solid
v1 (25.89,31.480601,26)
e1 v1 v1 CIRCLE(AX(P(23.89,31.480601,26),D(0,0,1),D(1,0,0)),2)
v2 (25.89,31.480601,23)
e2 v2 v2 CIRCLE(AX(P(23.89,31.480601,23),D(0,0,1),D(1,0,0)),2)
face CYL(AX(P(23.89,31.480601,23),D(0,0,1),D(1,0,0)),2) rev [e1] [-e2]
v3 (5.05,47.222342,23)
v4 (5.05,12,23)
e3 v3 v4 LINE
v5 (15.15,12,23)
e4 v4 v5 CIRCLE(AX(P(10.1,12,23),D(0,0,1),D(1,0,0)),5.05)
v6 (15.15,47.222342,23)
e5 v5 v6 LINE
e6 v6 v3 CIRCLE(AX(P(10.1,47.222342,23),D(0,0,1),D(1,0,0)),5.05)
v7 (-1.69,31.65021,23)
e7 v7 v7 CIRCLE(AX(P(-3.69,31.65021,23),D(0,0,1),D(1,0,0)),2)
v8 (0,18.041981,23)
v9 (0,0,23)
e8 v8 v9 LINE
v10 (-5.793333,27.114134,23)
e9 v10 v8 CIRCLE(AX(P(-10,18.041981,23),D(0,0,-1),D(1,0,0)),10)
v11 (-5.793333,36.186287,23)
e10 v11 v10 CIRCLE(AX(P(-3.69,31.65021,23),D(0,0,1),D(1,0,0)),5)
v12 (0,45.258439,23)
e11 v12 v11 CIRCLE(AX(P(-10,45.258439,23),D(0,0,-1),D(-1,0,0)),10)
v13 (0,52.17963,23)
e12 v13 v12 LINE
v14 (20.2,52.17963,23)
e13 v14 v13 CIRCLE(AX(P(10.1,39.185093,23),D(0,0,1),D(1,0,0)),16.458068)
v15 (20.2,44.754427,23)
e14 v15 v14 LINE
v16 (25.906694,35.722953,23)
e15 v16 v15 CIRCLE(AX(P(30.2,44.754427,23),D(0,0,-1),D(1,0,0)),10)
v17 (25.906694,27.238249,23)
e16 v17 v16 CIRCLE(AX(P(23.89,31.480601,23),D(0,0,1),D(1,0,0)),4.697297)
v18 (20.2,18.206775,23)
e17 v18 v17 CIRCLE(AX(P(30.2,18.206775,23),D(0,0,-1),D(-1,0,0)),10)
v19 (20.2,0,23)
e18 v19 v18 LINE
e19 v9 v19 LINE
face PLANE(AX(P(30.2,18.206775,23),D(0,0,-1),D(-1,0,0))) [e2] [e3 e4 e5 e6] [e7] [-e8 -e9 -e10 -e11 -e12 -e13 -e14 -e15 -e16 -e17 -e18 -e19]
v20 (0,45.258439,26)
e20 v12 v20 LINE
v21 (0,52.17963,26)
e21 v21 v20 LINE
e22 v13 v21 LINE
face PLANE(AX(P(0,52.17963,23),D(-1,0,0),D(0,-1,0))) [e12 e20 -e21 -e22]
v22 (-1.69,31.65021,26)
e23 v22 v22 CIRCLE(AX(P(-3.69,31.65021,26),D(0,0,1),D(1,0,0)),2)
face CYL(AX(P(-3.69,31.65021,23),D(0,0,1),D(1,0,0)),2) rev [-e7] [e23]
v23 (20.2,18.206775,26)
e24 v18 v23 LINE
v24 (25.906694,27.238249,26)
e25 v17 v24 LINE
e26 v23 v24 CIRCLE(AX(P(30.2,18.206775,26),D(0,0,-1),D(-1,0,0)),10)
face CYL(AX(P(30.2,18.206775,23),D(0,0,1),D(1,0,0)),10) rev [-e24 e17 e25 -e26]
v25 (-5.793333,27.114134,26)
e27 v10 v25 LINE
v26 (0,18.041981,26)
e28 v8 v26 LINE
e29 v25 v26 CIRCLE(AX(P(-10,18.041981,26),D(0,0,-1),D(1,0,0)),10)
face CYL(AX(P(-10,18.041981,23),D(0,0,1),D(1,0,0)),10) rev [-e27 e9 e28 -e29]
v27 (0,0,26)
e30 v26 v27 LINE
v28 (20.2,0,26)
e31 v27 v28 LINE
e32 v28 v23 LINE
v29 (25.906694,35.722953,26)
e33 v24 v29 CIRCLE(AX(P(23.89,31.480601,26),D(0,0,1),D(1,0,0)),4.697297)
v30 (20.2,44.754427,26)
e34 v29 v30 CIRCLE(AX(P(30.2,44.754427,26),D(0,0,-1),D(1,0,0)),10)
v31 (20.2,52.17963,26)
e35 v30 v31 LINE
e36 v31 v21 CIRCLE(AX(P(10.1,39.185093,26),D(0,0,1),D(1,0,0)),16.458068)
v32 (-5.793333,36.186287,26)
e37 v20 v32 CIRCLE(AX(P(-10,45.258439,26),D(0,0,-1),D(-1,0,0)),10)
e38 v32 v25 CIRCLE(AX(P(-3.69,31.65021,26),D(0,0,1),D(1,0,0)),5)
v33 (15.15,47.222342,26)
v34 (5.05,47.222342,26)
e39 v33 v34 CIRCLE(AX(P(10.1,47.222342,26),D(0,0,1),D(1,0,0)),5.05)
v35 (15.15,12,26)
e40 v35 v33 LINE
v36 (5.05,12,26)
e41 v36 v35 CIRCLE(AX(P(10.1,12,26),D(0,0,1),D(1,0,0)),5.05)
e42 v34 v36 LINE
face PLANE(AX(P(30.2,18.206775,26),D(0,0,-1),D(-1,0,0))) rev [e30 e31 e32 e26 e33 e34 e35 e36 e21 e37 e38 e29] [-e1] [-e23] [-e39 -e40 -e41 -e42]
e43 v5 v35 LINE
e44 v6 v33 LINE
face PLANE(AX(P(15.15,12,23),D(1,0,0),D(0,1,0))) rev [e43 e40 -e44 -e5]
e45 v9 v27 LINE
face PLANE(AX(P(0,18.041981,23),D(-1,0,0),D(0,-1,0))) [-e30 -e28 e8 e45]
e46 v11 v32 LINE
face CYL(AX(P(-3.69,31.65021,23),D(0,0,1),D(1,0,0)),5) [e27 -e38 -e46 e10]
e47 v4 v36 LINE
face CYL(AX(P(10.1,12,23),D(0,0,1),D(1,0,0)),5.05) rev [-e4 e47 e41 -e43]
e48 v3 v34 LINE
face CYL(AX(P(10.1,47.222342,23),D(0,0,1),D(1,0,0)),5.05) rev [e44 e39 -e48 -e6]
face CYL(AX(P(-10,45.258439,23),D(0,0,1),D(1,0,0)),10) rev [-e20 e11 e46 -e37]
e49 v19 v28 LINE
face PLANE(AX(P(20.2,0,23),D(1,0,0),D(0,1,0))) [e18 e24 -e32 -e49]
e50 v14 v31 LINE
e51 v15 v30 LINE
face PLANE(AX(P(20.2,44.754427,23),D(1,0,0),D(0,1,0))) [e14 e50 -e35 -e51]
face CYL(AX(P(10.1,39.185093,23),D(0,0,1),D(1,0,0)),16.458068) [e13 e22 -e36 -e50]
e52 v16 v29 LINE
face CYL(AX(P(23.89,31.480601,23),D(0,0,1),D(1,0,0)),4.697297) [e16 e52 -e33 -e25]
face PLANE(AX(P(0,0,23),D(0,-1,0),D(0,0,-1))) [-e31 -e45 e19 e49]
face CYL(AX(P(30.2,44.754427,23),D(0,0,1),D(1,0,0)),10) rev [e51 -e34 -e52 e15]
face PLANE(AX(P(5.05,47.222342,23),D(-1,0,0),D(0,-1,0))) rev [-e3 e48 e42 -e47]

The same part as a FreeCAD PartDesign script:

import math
import FreeCAD as App
import Part
import Sketcher
from FreeCAD import Vector

doc = App.newDocument("Part")
body = doc.addObject("PartDesign::Body", "Body")

# Sketch on XY plane
sketch1 = doc.addObject("Sketcher::SketchObject", "Sketch")
body.addObject(sketch1)
sketch1.AttachmentSupport = (doc.XY_Plane, [""])
sketch1.MapMode = "FlatFace"
sketch1.AttachmentOffset = App.Placement(Vector(0, 0, 26), App.Rotation())
sketch1.addGeometry([
    Part.LineSegment(Vector(0, 0, 0), Vector(20.2, 0, 0)),  # 0
    Part.LineSegment(Vector(20.2, 0, 0), Vector(20.2, 18.206775, 0)),  # 1
    Part.ArcOfCircle(Part.Circle(Vector(30.2, 18.206775, 0), Vector(0, 0, 1), 10), math.radians(115.425088), math.radians(180)),  # 2
    Part.ArcOfCircle(Part.Circle(Vector(23.89, 31.480601, 0), Vector(0, 0, 1), 4.697297), math.radians(-64.574912), math.radians(64.574912)),  # 3
    Part.ArcOfCircle(Part.Circle(Vector(30.2, 44.754427, 0), Vector(0, 0, 1), 10), math.radians(-180), math.radians(-115.425088)),  # 4
    Part.LineSegment(Vector(20.2, 44.754427, 0), Vector(20.2, 52.17963, 0)),  # 5
    Part.ArcOfCircle(Part.Circle(Vector(10.1, 39.185093, 0), Vector(0, 0, 1), 16.458068), math.radians(52.143874), math.radians(127.856126)),  # 6
    Part.LineSegment(Vector(0, 52.17963, 0), Vector(0, 45.258439, 0)),  # 7
    Part.ArcOfCircle(Part.Circle(Vector(-10, 45.258439, 0), Vector(0, 0, 1), 10), math.radians(-65.123316), math.radians(0)),  # 8
    Part.ArcOfCircle(Part.Circle(Vector(-3.69, 31.65021, 0), Vector(0, 0, 1), 5), math.radians(114.876684), math.radians(245.123316)),  # 9
    Part.ArcOfCircle(Part.Circle(Vector(-10, 18.041981, 0), Vector(0, 0, 1), 10), math.radians(0), math.radians(65.123316)),  # 10
    Part.LineSegment(Vector(0, 18.041981, 0), Vector(0, 0, 0)),  # 11
    Part.Circle(Vector(-3.69, 31.65021, 0), Vector(0, 0, 1), 2),  # 12
    Part.LineSegment(Vector(15.15, 47.222342, 0), Vector(15.15, 12, 0)),  # 13
    Part.ArcOfCircle(Part.Circle(Vector(10.1, 12, 0), Vector(0, 0, 1), 5.05), math.radians(180), math.radians(360)),  # 14
    Part.LineSegment(Vector(5.05, 12, 0), Vector(5.05, 47.222342, 0)),  # 15
    Part.ArcOfCircle(Part.Circle(Vector(10.1, 47.222342, 0), Vector(0, 0, 1), 5.05), math.radians(0), math.radians(180)),  # 16
    Part.Circle(Vector(23.89, 31.480601, 0), Vector(0, 0, 1), 2),  # 17
], False)
sketch1.addConstraint([
    Sketcher.Constraint("Coincident", 0, 2, 1, 1),
    Sketcher.Constraint("Tangent", 1, 2, 2, 2),
    Sketcher.Constraint("Tangent", 2, 1, 3, 1),
    Sketcher.Constraint("Tangent", 3, 2, 4, 2),
    Sketcher.Constraint("Tangent", 4, 1, 5, 1),
    Sketcher.Constraint("Coincident", 5, 2, 6, 1),
    Sketcher.Constraint("Coincident", 6, 2, 7, 1),
    Sketcher.Constraint("Tangent", 7, 2, 8, 2),
    Sketcher.Constraint("Tangent", 8, 1, 9, 1),
    Sketcher.Constraint("Tangent", 9, 2, 10, 2),
    Sketcher.Constraint("Tangent", 10, 1, 11, 1),
    Sketcher.Constraint("Coincident", 11, 2, 0, 1),
    Sketcher.Constraint("Tangent", 13, 2, 14, 2),
    Sketcher.Constraint("Tangent", 14, 1, 15, 1),
    Sketcher.Constraint("Tangent", 15, 2, 16, 2),
    Sketcher.Constraint("Tangent", 16, 1, 13, 1),
    Sketcher.Constraint("Horizontal", 0),
    Sketcher.Constraint("Vertical", 1),
    Sketcher.Constraint("Vertical", 5),
    Sketcher.Constraint("Vertical", 7),
    Sketcher.Constraint("Vertical", 11),
    Sketcher.Constraint("Vertical", 13),
    Sketcher.Constraint("Vertical", 15),
    Sketcher.Constraint("Coincident", 11, 2, -1, 1),
    Sketcher.Constraint("Coincident", 12, 3, 9, 3),
    Sketcher.Constraint("Coincident", 17, 3, 3, 3),
    Sketcher.Constraint("Equal", 2, 4),
    Sketcher.Constraint("Equal", 4, 8),
    Sketcher.Constraint("Equal", 8, 10),
    Sketcher.Constraint("Equal", 12, 17),
    Sketcher.Constraint("PointOnObject", 6, 2, -2),
    Sketcher.Constraint("Horizontal", 5, 2, 6, 2),
    Sketcher.Constraint("Vertical", 2, 3, 4, 3),
    Sketcher.Constraint("Vertical", 6, 3, 14, 3),
    Sketcher.Constraint("Diameter", 12, 4.0),
    Sketcher.Constraint("Radius", 2, 10.0),
    Sketcher.Constraint("Radius", 9, 5.0),
    Sketcher.Constraint("Radius", 14, 5.05),
    Sketcher.Constraint("DistanceX", 0, 1, 0, 2, 20.2),
    Sketcher.Constraint("DistanceY", -1, 1, 14, 3, 12.0),
    Sketcher.Constraint("DistanceX", -1, 1, 3, 3, 23.89),
    Sketcher.Constraint("DistanceX", 9, 3, -1, 1, 3.69),
    Sketcher.Constraint("Radius", 3, 4.697297),
    Sketcher.Constraint("Radius", 6, 16.458068),
    Sketcher.Constraint("DistanceY", 7, 2, 7, 1, 6.921191),
    Sketcher.Constraint("DistanceY", 11, 2, 11, 1, 18.041981),
    Sketcher.Constraint("DistanceY", -1, 1, 3, 3, 31.480601),
    Sketcher.Constraint("DistanceY", 13, 2, 13, 1, 35.222342),
])
pad1 = doc.addObject("PartDesign::Pad", "Pad")
body.addObject(pad1)
pad1.Profile = sketch1
pad1.Length = 3
pad1.Reversed = True

doc.recompute()
